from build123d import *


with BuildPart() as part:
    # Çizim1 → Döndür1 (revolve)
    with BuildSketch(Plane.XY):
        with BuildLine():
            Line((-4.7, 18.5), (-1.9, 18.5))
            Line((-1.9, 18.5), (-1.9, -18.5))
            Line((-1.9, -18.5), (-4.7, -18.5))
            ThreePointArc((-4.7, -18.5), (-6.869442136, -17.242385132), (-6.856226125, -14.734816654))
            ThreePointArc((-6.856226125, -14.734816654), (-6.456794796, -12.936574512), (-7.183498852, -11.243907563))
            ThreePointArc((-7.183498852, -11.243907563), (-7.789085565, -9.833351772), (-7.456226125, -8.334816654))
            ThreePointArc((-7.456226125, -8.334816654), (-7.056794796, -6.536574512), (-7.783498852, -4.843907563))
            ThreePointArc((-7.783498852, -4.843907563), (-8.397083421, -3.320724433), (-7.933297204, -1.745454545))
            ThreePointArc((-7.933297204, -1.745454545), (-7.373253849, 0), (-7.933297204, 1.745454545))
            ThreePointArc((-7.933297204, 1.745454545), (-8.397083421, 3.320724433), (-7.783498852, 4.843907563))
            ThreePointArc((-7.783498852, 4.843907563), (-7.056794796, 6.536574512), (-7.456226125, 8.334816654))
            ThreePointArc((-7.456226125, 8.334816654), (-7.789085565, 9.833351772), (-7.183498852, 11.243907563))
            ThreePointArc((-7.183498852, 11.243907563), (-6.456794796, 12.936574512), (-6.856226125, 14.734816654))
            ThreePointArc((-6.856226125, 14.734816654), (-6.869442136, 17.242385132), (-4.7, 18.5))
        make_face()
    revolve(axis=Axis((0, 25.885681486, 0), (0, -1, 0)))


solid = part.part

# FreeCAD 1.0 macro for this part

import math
import FreeCAD as App
import Part
import Sketcher
from FreeCAD import Vector
Q = App.Units.Quantity

doc = App.newDocument("Part")
body = doc.addObject("PartDesign::Body", "Body")

# Sketch on XY plane
sketch1 = doc.addObject("Sketcher::SketchObject", "Sketch")
body.addObject(sketch1)
sketch1.AttachmentSupport = (doc.XY_Plane, [""])
sketch1.MapMode = "FlatFace"
sketch1.addGeometry(Part.LineSegment(Vector(-1.9, 18.5, 0), Vector(-4.7, 18.5, 0)), False)
sketch1.addGeometry(Part.ArcOfCircle(Part.Circle(Vector(-4.7, 16, 0), Vector(0, 0, 1), 2.5), math.radians(90), math.radians(210.402629)), False)
sketch1.addGeometry(Part.ArcOfCircle(Part.Circle(Vector(-9.443697, 13.216597, 0), Vector(0, 0, 1), 3), math.radians(-41.114279), math.radians(30.402629)), False)
sketch1.addGeometry(Part.ArcOfCircle(Part.Circle(Vector(-5.3, 9.6, 0), Vector(0, 0, 1), 2.5), math.radians(138.885721), math.radians(210.402629)), False)
sketch1.addGeometry(Part.ArcOfCircle(Part.Circle(Vector(-10.043697, 6.816597, 0), Vector(0, 0, 1), 3), math.radians(-41.114279), math.radians(30.402629)), False)
sketch1.addGeometry(Part.ArcOfCircle(Part.Circle(Vector(-5.9, 3.2, 0), Vector(0, 0, 1), 2.5), math.radians(138.885721), math.radians(215.578526)), False)
sketch1.addGeometry(Part.ArcOfCircle(Part.Circle(Vector(-10.373254, 0, 0), Vector(0, 0, 1), 3), math.radians(-35.578526), math.radians(35.578526)), False)
sketch1.addGeometry(Part.ArcOfCircle(Part.Circle(Vector(-5.9, -3.2, 0), Vector(0, 0, 1), 2.5), math.radians(144.421474), math.radians(221.114279)), False)
sketch1.addGeometry(Part.ArcOfCircle(Part.Circle(Vector(-10.043697, -6.816597, 0), Vector(0, 0, 1), 3), math.radians(-30.402629), math.radians(41.114279)), False)
sketch1.addGeometry(Part.ArcOfCircle(Part.Circle(Vector(-5.3, -9.6, 0), Vector(0, 0, 1), 2.5), math.radians(149.597371), math.radians(221.114279)), False)
sketch1.addGeometry(Part.ArcOfCircle(Part.Circle(Vector(-9.443697, -13.216597, 0), Vector(0, 0, 1), 3), math.radians(-30.402629), math.radians(41.114279)), False)
sketch1.addGeometry(Part.ArcOfCircle(Part.Circle(Vector(-4.7, -16, 0), Vector(0, 0, 1), 2.5), math.radians(149.597371), math.radians(270)), False)
sketch1.addGeometry(Part.LineSegment(Vector(-4.7, -18.5, 0), Vector(-1.9, -18.5, 0)), False)
sketch1.addGeometry(Part.LineSegment(Vector(-1.9, -18.5, 0), Vector(-1.9, 18.5, 0)), False)
sketch1.addConstraint(Sketcher.Constraint("Tangent", 0, 2, 1, 1))
sketch1.addConstraint(Sketcher.Constraint("Tangent", 1, 2, 2, 2))
sketch1.addConstraint(Sketcher.Constraint("Tangent", 2, 1, 3, 1))
sketch1.addConstraint(Sketcher.Constraint("Tangent", 3, 2, 4, 2))
sketch1.addConstraint(Sketcher.Constraint("Tangent", 4, 1, 5, 1))
sketch1.addConstraint(Sketcher.Constraint("Tangent", 5, 2, 6, 2))
sketch1.addConstraint(Sketcher.Constraint("Tangent", 6, 1, 7, 1))
sketch1.addConstraint(Sketcher.Constraint("Tangent", 7, 2, 8, 2))
sketch1.addConstraint(Sketcher.Constraint("Tangent", 8, 1, 9, 1))
sketch1.addConstraint(Sketcher.Constraint("Tangent", 9, 2, 10, 2))
sketch1.addConstraint(Sketcher.Constraint("Tangent", 10, 1, 11, 1))
sketch1.addConstraint(Sketcher.Constraint("Tangent", 11, 2, 12, 1))
sketch1.addConstraint(Sketcher.Constraint("Coincident", 12, 2, 13, 1))
sketch1.addConstraint(Sketcher.Constraint("Coincident", 13, 2, 0, 1))
sketch1.addConstraint(Sketcher.Constraint("Horizontal", 0))
sketch1.addConstraint(Sketcher.Constraint("Horizontal", 12))
sketch1.addConstraint(Sketcher.Constraint("Vertical", 13))
sketch1.addConstraint(Sketcher.Constraint("Equal", 1, 3))
sketch1.addConstraint(Sketcher.Constraint("Equal", 2, 4))
sketch1.addConstraint(Sketcher.Constraint("Equal", 3, 5))
sketch1.addConstraint(Sketcher.Constraint("Equal", 4, 6))
sketch1.addConstraint(Sketcher.Constraint("Equal", 5, 7))
sketch1.addConstraint(Sketcher.Constraint("Equal", 6, 8))
sketch1.addConstraint(Sketcher.Constraint("Equal", 7, 9))
sketch1.addConstraint(Sketcher.Constraint("Equal", 8, 10))
sketch1.addConstraint(Sketcher.Constraint("Equal", 9, 11))
sketch1.addConstraint(Sketcher.Constraint("Symmetric", 5, 3, 7, 3, -1))
sketch1.addConstraint(Sketcher.Constraint("Symmetric", 3, 3, 9, 3, -1))
sketch1.addConstraint(Sketcher.Constraint("Symmetric", 1, 3, 11, 3, -1))
sketch1.addConstraint(Sketcher.Constraint("Radius", 2, Q("3 mm")))
sketch1.addConstraint(Sketcher.Constraint("Radius", 1, Q("2.5 mm")))
sketch1.addConstraint(Sketcher.Constraint("DistanceY", 13, 1, 13, 2, Q("37 mm")))
sketch1.addConstraint(Sketcher.Constraint("DistanceX", 0, 2, 0, 1, Q("2.8 mm")))
sketch1.addConstraint(Sketcher.Constraint("DistanceX", 1, 3, -1, 1, Q("4.7 mm")))
sketch1.addConstraint(Sketcher.Constraint("DistanceX", 3, 3, -1, 1, Q("5.3 mm")))
sketch1.addConstraint(Sketcher.Constraint("DistanceY", -1, 1, 3, 3, Q("9.6 mm")))
sketch1.addConstraint(Sketcher.Constraint("DistanceX", 5, 3, -1, 1, Q("5.9 mm")))
sketch1.addConstraint(Sketcher.Constraint("DistanceY", -1, 1, 5, 3, Q("3.2 mm")))
revolution = doc.addObject("PartDesign::Revolution", "Revolution")
body.addObject(revolution)
revolution.Profile = sketch1
revolution.ReferenceAxis = (sketch1, ["V_Axis"])
revolution.Angle = 360

doc.recompute()
